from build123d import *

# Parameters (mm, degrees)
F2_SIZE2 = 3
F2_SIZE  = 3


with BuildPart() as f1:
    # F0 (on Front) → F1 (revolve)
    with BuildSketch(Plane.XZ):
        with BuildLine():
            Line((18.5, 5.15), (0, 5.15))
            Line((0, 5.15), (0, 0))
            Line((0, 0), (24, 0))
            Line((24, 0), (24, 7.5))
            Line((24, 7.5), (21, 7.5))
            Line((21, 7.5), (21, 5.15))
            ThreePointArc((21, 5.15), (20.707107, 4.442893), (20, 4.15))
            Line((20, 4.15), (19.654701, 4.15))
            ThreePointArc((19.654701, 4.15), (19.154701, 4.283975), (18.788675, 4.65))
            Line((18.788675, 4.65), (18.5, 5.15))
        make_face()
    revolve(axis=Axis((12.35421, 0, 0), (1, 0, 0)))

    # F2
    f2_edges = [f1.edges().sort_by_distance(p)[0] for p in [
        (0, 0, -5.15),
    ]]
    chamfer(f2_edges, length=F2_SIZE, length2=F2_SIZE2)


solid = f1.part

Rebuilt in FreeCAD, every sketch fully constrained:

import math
import FreeCAD as App
import Part
import Sketcher
from FreeCAD import Vector
Q = App.Units.Quantity


def edges_at(feature, points):
    """Names of the edges that pass closest to the given points."""
    edges = feature.Shape.Edges
    near = lambda p: min(range(len(edges)), key=lambda i: edges[i].distToShape(Part.Vertex(*p))[0])
    return sorted({f"Edge{near(p) + 1}" for p in points})

doc = App.newDocument("Part")
params = doc.addObject("Spreadsheet::Sheet", "Params")
for row, (alias, value) in enumerate([
    ("sketch1_radius", "0.999999 mm"),
    ("sketch1_width", "24 mm"),
    ("sketch1_width2", "3 mm"),
    ("sketch1_width3", "18.5 mm"),
    ("sketch1_height", "7.5 mm"),
    ("revolution_angle", "360 deg"),
    ("chamfer_size", "3 mm"),
    ("chamfer_size2", "3 mm"),
], start=1):
    params.set(f"A{row}", alias)
    params.set(f"B{row}", "=" + value)
    params.setAlias(f"B{row}", alias)

body = doc.addObject("PartDesign::Body", "Body")

sketch1 = body.newObject("Sketcher::SketchObject", "Sketch")
sketch1.AttachmentSupport = (doc.getObject("XZ_Plane"), [""])
sketch1.MapMode = "FlatFace"
sketch1.addGeometry([
    Part.LineSegment(Vector(18.5, 5.15, 0), Vector(0, 5.15, 0)),
    Part.LineSegment(Vector(0, 5.15, 0), Vector(0, 0, 0)),
    Part.LineSegment(Vector(0, 0, 0), Vector(24, 0, 0)),
    Part.LineSegment(Vector(24, 0, 0), Vector(24, 7.5, 0)),
    Part.LineSegment(Vector(24, 7.5, 0), Vector(21, 7.5, 0)),
    Part.LineSegment(Vector(21, 7.5, 0), Vector(21, 5.15, 0)),
    Part.ArcOfCircle(Part.Circle(Vector(20, 5.15, 0), Vector(0, 0, 1), 1), math.radians(-90), math.radians(0)),
    Part.LineSegment(Vector(20, 4.15, 0), Vector(19.65, 4.15, 0)),
    Part.ArcOfCircle(Part.Circle(Vector(19.65, 5.15, 0), Vector(0, 0, 1), 1), math.radians(-150), math.radians(-90)),
    Part.LineSegment(Vector(18.79, 4.65, 0), Vector(18.5, 5.15, 0)),
], False)
sketch1.addConstraint([
    Sketcher.Constraint("Coincident", 0, 2, 1, 1),
    Sketcher.Constraint("Coincident", 1, 2, 2, 1),
    Sketcher.Constraint("Coincident", 2, 2, 3, 1),
    Sketcher.Constraint("Coincident", 3, 2, 4, 1),
    Sketcher.Constraint("Coincident", 4, 2, 5, 1),
    Sketcher.Constraint("Tangent", 5, 2, 6, 2),
    Sketcher.Constraint("Tangent", 6, 1, 7, 1),
    Sketcher.Constraint("Tangent", 7, 2, 8, 2),
    Sketcher.Constraint("Coincident", 8, 1, 9, 1),
    Sketcher.Constraint("Coincident", 9, 2, 0, 1),
    Sketcher.Constraint("Horizontal", 0),
    Sketcher.Constraint("Vertical", 1),
    Sketcher.Constraint("Horizontal", 2),
    Sketcher.Constraint("Vertical", 3),
    Sketcher.Constraint("Horizontal", 4),
    Sketcher.Constraint("Vertical", 5),
    Sketcher.Constraint("Horizontal", 7),
    Sketcher.Constraint("Coincident", 1, 2, -1, 1),
    Sketcher.Constraint("Horizontal", 6, 3, 0, 2),
    Sketcher.Constraint("Radius", 6, 0.999999),
    Sketcher.Constraint("DistanceX", 2, 1, 2, 2, 24.0),
    Sketcher.Constraint("DistanceX", 4, 2, 4, 1, 3.0),
    Sketcher.Constraint("Angle", 9, Q("119.999988 deg")),
    Sketcher.Constraint("DistanceX", 0, 2, 0, 1, 18.5),
    Sketcher.Constraint("DistanceY", 3, 1, 3, 2, 7.5),
    Sketcher.Constraint("DistanceY", 1, 2, 1, 1, 5.15),
    Sketcher.Constraint("DistanceY", 7, 2, 8, 1, 0.5),
    Sketcher.Constraint("DistanceX", 7, 2, 7, 1, 0.345299),
])
sketch1.setExpression("Constraints[19]", "Params.sketch1_radius")
sketch1.setExpression("Constraints[20]", "Params.sketch1_width")
sketch1.setExpression("Constraints[21]", "Params.sketch1_width2")
sketch1.setExpression("Constraints[23]", "Params.sketch1_width3")
sketch1.setExpression("Constraints[24]", "Params.sketch1_height")
revolution = body.newObject("PartDesign::Revolution", "Revolution")
revolution.Profile = sketch1
revolution.ReferenceAxis = (sketch1, ["H_Axis"])
revolution.setExpression("Angle", "Params.revolution_angle")
doc.recompute()

chamfer = body.newObject("PartDesign::Chamfer", "Chamfer")
chamfer.Base = (revolution, edges_at(revolution, [(0, 0, -5.15)]))
chamfer.ChamferType = "Two distances"
chamfer.setExpression("Size", "Params.chamfer_size")
chamfer.setExpression("Size2", "Params.chamfer_size2")

doc.recompute()
